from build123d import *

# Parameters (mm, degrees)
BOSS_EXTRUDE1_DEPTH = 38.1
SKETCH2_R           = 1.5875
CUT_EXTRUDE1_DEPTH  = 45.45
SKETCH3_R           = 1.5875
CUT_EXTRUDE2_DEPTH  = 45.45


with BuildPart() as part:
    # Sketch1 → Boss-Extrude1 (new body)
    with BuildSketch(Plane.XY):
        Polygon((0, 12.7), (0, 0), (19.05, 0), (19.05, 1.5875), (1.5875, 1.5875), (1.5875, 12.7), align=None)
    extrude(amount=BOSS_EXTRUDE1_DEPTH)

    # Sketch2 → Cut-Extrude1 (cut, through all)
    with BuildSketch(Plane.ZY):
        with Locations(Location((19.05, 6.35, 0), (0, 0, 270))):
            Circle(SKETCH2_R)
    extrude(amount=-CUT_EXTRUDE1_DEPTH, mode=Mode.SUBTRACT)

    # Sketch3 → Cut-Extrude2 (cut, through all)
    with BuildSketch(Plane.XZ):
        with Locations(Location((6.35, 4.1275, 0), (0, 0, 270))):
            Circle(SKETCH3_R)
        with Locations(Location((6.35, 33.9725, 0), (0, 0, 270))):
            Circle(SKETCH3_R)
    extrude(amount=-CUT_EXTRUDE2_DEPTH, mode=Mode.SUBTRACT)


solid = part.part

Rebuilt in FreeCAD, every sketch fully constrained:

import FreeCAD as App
import Part
import Sketcher
from FreeCAD import Vector
Q = App.Units.Quantity


def add_polygon(sketch, points):
    """Adds a closed chain of lines whose ends are joined by coincident constraints."""
    first, n = sketch.GeometryCount, len(points)
    for a, b in zip(points, points[1:] + points[:1]):
        sketch.addGeometry(Part.LineSegment(App.Vector(*a, 0), App.Vector(*b, 0)), False)
    for i in range(n):
        sketch.addConstraint(Sketcher.Constraint("Coincident", first + i, 2, first + (i + 1) % n, 1))

doc = App.newDocument("Part")
body = doc.addObject("PartDesign::Body", "Body")

# Sketch on XY plane
sketch1 = body.newObject("Sketcher::SketchObject", "Sketch")
sketch1.AttachmentSupport = (doc.getObject("XY_Plane"), [""])
sketch1.MapMode = "FlatFace"
add_polygon(sketch1, [(0, 12.7), (0, 0), (19.05, 0), (19.05, 1.5875), (1.5875, 1.5875), (1.5875, 12.7)])  # lines 0-5
sketch1.addConstraint(Sketcher.Constraint("Vertical", 0))
sketch1.addConstraint(Sketcher.Constraint("Horizontal", 1))
sketch1.addConstraint(Sketcher.Constraint("Vertical", 2))
sketch1.addConstraint(Sketcher.Constraint("Horizontal", 3))
sketch1.addConstraint(Sketcher.Constraint("Vertical", 4))
sketch1.addConstraint(Sketcher.Constraint("Horizontal", 5))
sketch1.addConstraint(Sketcher.Constraint("Coincident", 0, 2, -1, 1))
sketch1.addConstraint(Sketcher.Constraint("Equal", 5, 2))
sketch1.addConstraint(Sketcher.Constraint("DistanceY", 0, 2, 0, 1, Q("0.5 in")))
sketch1.addConstraint(Sketcher.Constraint("DistanceX", 1, 1, 1, 2, Q("0.75 in")))
sketch1.addConstraint(Sketcher.Constraint("DistanceX", 3, 2, 3, 1, Q("0.6875 in")))
pad1 = body.newObject("PartDesign::Pad", "Pad")
pad1.Profile = sketch1
pad1.Length = Q("1.5 in")

# Sketch on YZ plane
sketch2 = body.newObject("Sketcher::SketchObject", "Sketch001")
sketch2.AttachmentSupport = (doc.getObject("YZ_Plane"), [""])
sketch2.MapMode = "FlatFace"
sketch2.addGeometry(Part.Circle(Vector(6.35, 19.05, 0), Vector(0, 0, 1), 1.5875), False)
sketch2.addConstraint(Sketcher.Constraint("Diameter", 0, Q("0.125 in")))
sketch2.addConstraint(Sketcher.Constraint("DistanceX", -1, 1, 0, 3, Q("0.25 in")))
sketch2.addConstraint(Sketcher.Constraint("DistanceY", -1, 1, 0, 3, Q("0.75 in")))
pocket1 = body.newObject("PartDesign::Pocket", "Pocket")
pocket1.Profile = sketch2
pocket1.Type = "ThroughAll"
pocket1.Reversed = True

# Sketch on XZ plane
sketch3 = body.newObject("Sketcher::SketchObject", "Sketch002")
sketch3.AttachmentSupport = (doc.getObject("XZ_Plane"), [""])
sketch3.MapMode = "FlatFace"
sketch3.addGeometry(Part.Circle(Vector(6.35, 4.1275, 0), Vector(0, 0, 1), 1.5875), False)
sketch3.addGeometry(Part.Circle(Vector(6.35, 33.9725, 0), Vector(0, 0, 1), 1.5875), False)
sketch3.addConstraint(Sketcher.Constraint("Equal", 0, 1))
sketch3.addConstraint(Sketcher.Constraint("Vertical", 0, 3, 1, 3))
sketch3.addConstraint(Sketcher.Constraint("Diameter", 0, Q("0.125 in")))
sketch3.addConstraint(Sketcher.Constraint("DistanceX", -1, 1, 0, 3, Q("0.25 in")))
sketch3.addConstraint(Sketcher.Constraint("DistanceY", 0, 3, 1, 3, Q("1.175 in")))
sketch3.addConstraint(Sketcher.Constraint("DistanceY", -1, 1, 0, 3, Q("0.1625 in")))
pocket2 = body.newObject("PartDesign::Pocket", "Pocket001")
pocket2.Profile = sketch3
pocket2.Type = "ThroughAll"

doc.recompute()
